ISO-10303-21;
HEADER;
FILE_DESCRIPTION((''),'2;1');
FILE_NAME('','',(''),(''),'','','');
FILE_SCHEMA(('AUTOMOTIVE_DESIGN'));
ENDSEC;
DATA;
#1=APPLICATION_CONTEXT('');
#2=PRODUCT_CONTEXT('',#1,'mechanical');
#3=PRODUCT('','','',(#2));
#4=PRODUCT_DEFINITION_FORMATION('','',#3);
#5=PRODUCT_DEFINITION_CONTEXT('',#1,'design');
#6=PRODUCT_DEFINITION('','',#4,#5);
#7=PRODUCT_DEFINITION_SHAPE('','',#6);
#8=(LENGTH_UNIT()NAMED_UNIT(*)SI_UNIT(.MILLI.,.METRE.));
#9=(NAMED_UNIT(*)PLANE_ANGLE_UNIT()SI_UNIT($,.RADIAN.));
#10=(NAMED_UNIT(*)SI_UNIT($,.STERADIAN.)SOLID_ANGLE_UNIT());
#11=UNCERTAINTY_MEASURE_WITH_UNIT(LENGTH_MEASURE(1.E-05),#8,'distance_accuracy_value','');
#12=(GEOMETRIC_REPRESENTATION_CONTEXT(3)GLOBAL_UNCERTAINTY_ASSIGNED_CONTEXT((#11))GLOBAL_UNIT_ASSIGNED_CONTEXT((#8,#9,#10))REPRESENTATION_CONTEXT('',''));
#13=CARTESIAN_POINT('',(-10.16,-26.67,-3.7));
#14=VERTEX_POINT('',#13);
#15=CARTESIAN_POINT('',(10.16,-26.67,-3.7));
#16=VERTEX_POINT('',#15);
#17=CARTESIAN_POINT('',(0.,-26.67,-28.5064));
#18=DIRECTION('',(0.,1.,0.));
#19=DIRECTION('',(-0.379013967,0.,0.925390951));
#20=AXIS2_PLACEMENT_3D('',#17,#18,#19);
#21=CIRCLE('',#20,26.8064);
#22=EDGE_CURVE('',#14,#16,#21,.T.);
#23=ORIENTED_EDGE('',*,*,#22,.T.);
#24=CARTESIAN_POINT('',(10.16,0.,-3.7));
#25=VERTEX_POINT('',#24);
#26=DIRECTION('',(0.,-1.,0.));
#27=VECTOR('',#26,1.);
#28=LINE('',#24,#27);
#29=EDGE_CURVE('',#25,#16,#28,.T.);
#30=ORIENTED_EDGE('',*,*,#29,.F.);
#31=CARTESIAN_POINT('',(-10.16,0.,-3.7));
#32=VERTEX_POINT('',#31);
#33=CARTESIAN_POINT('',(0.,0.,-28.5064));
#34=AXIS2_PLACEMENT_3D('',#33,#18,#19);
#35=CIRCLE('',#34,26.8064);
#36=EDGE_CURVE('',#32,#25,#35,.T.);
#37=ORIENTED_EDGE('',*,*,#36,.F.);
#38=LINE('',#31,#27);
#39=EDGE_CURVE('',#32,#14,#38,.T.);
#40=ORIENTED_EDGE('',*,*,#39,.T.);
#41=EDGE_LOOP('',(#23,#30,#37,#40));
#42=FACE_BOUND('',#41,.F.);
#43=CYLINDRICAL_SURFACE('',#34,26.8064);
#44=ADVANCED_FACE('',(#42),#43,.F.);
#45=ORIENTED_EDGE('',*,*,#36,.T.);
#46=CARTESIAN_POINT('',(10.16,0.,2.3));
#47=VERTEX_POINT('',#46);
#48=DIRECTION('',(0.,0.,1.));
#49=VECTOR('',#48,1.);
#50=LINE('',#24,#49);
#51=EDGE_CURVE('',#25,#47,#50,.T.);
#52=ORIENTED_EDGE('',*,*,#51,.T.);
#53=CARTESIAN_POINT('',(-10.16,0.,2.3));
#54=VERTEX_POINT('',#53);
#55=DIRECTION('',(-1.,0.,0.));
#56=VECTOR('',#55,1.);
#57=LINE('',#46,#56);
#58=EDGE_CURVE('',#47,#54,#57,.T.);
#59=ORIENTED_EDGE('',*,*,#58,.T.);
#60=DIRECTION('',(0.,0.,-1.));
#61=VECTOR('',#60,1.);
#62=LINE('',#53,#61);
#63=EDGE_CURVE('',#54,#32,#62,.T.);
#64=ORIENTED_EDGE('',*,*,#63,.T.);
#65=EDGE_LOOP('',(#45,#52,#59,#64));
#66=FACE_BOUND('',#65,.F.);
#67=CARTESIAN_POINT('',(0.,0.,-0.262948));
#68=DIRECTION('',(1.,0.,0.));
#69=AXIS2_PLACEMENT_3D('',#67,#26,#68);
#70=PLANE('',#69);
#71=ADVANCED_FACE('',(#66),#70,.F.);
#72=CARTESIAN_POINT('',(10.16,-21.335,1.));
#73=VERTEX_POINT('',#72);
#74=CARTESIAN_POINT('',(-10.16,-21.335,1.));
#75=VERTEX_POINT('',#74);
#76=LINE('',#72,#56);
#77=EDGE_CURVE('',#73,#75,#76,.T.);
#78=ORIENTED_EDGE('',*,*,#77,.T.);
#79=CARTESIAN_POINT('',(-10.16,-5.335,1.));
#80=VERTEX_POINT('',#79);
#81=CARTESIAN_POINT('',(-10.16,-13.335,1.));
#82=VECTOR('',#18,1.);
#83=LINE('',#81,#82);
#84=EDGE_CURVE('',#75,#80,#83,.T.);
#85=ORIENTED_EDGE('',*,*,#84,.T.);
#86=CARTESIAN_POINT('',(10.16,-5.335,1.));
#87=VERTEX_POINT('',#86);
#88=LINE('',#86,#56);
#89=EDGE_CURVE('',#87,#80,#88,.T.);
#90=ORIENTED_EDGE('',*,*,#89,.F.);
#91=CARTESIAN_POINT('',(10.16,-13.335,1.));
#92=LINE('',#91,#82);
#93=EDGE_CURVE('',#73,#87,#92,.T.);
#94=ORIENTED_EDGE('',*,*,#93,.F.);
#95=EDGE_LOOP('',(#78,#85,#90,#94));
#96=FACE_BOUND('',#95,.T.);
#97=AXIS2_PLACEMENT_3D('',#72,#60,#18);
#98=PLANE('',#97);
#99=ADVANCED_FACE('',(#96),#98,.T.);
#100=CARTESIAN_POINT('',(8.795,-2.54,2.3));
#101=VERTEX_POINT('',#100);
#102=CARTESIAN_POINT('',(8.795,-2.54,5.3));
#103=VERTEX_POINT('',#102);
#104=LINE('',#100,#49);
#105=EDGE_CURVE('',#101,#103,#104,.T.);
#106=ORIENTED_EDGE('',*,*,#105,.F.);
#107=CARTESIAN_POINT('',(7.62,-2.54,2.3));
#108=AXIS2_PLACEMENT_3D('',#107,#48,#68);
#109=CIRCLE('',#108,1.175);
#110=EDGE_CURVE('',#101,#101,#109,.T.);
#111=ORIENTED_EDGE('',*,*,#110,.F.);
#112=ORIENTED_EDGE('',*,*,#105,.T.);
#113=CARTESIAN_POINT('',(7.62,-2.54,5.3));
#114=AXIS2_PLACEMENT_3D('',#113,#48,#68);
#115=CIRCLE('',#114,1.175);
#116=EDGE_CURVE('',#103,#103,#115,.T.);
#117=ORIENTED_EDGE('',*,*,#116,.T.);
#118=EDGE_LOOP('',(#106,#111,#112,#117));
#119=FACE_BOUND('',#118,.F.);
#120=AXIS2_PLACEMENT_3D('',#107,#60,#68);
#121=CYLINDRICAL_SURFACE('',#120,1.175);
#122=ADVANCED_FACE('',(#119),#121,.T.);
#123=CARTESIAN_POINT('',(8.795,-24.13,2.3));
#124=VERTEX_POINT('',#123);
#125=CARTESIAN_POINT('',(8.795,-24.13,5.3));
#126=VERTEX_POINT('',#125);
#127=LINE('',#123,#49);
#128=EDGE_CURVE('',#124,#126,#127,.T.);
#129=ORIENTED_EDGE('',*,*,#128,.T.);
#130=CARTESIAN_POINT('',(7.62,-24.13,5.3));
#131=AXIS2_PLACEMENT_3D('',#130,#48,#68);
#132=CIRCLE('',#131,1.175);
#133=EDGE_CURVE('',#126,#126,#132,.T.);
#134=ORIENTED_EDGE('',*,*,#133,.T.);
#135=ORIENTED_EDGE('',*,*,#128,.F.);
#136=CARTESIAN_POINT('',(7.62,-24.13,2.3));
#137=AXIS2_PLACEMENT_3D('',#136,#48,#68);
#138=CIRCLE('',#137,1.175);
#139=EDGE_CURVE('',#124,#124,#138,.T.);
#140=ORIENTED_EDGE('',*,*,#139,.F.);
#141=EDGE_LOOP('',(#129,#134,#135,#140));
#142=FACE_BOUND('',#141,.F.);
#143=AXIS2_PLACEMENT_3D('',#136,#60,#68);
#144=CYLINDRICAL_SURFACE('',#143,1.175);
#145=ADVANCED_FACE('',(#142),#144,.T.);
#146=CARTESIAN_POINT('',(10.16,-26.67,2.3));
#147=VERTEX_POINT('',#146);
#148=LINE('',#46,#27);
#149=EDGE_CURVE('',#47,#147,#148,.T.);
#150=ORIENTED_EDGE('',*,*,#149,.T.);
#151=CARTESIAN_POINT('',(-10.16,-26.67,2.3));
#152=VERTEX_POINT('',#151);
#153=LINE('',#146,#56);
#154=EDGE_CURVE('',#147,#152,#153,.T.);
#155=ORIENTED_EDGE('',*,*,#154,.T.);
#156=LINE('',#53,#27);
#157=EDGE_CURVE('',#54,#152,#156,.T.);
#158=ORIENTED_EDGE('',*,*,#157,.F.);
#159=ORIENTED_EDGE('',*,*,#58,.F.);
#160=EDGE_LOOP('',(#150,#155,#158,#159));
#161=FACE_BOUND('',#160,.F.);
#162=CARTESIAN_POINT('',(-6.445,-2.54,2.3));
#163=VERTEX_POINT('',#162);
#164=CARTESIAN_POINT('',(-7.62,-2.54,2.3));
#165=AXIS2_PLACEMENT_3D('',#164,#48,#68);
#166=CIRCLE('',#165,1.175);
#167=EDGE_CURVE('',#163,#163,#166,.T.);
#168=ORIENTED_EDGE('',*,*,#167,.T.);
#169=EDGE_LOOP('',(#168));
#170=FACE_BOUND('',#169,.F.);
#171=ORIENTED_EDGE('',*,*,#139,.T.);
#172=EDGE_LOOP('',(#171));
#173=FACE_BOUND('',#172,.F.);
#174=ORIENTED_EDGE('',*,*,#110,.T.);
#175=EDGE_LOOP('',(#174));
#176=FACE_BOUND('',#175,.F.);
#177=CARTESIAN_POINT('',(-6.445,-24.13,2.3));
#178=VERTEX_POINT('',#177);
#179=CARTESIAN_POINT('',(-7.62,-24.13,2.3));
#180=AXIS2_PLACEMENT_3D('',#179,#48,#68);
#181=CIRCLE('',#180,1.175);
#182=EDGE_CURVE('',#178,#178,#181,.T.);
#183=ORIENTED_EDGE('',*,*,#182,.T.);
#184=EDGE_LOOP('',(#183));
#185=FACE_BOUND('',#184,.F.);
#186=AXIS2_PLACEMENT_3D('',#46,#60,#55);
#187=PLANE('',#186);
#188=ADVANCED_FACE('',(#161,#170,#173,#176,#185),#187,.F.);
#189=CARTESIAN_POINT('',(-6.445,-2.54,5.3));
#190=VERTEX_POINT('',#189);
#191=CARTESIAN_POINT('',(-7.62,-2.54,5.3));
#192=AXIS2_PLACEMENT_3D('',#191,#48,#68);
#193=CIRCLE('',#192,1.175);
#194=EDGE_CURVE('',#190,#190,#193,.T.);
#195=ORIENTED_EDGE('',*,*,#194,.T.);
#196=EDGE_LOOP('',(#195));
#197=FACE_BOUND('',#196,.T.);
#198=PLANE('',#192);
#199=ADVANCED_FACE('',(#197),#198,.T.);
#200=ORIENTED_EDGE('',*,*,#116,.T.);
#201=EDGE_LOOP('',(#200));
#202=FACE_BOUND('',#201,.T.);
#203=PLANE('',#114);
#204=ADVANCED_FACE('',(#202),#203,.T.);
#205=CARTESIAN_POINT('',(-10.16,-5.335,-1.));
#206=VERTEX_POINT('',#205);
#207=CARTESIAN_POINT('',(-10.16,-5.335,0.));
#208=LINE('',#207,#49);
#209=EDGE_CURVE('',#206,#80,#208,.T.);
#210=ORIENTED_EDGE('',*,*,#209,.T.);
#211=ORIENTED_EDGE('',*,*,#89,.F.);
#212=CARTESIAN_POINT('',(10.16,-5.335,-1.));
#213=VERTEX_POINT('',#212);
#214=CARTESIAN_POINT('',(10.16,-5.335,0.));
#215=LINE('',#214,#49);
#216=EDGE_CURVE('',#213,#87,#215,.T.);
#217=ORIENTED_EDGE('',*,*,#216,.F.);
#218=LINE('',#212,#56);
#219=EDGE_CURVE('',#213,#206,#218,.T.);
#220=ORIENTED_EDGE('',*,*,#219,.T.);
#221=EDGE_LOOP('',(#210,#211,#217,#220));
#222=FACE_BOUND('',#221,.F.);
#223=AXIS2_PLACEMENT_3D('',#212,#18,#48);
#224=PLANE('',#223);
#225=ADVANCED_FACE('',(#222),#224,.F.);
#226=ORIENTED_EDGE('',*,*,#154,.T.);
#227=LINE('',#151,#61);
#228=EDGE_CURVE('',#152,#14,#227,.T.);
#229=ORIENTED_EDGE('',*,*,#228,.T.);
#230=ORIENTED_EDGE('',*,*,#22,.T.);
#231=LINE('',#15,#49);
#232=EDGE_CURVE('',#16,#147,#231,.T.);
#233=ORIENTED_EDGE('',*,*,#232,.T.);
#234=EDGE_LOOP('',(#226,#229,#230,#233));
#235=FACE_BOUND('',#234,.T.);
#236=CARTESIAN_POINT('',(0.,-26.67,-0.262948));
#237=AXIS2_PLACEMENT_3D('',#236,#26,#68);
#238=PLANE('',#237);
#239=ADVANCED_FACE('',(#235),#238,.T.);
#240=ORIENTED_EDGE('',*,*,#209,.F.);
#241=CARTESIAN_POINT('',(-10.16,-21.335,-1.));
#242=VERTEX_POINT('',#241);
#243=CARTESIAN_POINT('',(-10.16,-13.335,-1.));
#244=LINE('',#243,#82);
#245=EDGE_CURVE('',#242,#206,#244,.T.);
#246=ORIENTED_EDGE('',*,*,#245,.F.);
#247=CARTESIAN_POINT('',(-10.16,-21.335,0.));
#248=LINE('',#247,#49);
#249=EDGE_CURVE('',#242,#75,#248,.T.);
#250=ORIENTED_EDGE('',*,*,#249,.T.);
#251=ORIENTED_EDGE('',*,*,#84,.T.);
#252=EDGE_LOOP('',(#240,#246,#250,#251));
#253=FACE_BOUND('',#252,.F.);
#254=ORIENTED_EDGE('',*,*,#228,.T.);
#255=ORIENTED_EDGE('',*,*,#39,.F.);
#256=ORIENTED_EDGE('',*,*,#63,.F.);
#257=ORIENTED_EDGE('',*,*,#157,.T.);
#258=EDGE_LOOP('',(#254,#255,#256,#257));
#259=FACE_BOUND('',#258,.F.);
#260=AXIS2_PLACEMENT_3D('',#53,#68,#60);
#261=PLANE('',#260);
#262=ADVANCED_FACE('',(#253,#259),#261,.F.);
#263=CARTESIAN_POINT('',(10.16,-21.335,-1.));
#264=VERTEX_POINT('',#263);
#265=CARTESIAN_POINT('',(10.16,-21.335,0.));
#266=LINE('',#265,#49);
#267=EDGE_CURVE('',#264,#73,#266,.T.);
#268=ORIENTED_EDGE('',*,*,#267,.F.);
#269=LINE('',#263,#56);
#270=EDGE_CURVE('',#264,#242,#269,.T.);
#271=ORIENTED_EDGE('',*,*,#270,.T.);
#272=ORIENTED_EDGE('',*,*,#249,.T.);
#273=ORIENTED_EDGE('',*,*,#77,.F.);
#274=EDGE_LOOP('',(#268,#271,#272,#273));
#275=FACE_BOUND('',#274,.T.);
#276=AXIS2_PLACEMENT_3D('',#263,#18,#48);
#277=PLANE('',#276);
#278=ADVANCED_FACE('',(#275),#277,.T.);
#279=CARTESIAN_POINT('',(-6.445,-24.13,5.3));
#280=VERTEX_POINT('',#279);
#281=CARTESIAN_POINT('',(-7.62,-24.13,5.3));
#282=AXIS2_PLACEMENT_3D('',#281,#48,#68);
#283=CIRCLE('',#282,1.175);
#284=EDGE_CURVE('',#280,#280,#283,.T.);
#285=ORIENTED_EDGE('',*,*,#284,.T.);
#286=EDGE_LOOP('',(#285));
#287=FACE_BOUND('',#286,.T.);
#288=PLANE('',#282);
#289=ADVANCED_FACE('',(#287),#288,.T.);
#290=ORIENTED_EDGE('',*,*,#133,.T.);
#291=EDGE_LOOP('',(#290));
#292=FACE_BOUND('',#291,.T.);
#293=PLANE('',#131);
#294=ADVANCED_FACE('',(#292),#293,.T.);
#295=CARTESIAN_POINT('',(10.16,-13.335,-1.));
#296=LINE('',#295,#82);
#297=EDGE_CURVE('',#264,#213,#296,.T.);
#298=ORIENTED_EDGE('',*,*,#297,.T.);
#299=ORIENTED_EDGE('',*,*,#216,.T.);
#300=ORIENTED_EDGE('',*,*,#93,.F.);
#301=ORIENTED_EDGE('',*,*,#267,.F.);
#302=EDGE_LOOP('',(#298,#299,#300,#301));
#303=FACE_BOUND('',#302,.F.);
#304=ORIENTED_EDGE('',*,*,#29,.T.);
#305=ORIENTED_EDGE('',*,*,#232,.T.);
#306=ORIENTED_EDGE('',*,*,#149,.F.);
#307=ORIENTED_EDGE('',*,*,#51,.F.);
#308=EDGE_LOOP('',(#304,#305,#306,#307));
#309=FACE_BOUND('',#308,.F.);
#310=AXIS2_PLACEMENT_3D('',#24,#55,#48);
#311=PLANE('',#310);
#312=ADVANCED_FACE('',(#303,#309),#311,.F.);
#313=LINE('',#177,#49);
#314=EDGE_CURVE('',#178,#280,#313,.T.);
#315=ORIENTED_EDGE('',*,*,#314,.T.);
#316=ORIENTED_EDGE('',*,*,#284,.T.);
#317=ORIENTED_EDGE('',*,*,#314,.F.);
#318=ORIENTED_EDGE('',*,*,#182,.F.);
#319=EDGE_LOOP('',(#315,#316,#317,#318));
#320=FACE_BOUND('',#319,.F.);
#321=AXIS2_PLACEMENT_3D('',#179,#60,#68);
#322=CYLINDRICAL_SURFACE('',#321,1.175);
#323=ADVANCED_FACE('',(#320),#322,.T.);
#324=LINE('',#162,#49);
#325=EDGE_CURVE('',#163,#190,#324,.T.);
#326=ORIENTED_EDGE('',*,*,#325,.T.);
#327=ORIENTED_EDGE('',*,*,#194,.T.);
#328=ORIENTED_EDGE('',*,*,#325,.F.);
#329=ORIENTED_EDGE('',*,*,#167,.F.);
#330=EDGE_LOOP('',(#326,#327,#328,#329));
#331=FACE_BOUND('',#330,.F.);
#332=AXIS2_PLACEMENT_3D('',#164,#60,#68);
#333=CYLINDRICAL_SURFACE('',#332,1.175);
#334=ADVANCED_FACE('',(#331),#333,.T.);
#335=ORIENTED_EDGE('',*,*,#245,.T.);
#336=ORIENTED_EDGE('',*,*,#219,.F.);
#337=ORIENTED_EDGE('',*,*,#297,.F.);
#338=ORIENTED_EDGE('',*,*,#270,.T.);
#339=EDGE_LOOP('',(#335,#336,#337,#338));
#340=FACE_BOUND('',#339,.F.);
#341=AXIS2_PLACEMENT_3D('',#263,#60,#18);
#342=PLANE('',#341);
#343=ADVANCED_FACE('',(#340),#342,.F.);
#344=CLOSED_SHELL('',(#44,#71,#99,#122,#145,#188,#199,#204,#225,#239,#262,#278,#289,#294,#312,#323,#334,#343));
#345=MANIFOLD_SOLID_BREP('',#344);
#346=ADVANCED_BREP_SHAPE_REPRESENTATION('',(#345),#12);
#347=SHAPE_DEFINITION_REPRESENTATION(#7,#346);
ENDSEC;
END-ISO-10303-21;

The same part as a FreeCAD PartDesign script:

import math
import FreeCAD as App
import Part
import Sketcher
from FreeCAD import Vector


def add_polygon(sketch, points):
    """Adds a closed chain of lines whose ends are joined by coincident constraints."""
    first, n = sketch.GeometryCount, len(points)
    for a, b in zip(points, points[1:] + points[:1]):
        sketch.addGeometry(Part.LineSegment(App.Vector(*a, 0), App.Vector(*b, 0)), False)
    for i in range(n):
        sketch.addConstraint(Sketcher.Constraint("Coincident", first + i, 2, first + (i + 1) % n, 1))

doc = App.newDocument("Part")
body = doc.addObject("PartDesign::Body", "Body")

sketch1 = body.newObject("Sketcher::SketchObject", "Sketch")
sketch1.AttachmentSupport = (doc.getObject("XZ_Plane"), [""])
sketch1.MapMode = "FlatFace"
sketch1.addGeometry([
    Part.ArcOfCircle(Part.Circle(Vector(0, -29, 0), Vector(0, 0, 1), 27), math.radians(68), math.radians(112)),
    Part.LineSegment(Vector(10, -4, 0), Vector(10, 2, 0)),
    Part.LineSegment(Vector(10, 2, 0), Vector(-10, 2, 0)),
    Part.LineSegment(Vector(-10, 2, 0), Vector(-10, -4, 0)),
], False)
sketch1.addConstraint([
    Sketcher.Constraint("Coincident", 0, 1, 1, 1),
    Sketcher.Constraint("Coincident", 1, 2, 2, 1),
    Sketcher.Constraint("Coincident", 2, 2, 3, 1),
    Sketcher.Constraint("Coincident", 3, 2, 0, 2),
    Sketcher.Constraint("Vertical", 1),
    Sketcher.Constraint("Horizontal", 2),
    Sketcher.Constraint("Vertical", 3),
    Sketcher.Constraint("Symmetric", 0, 1, 3, 2, -2),
    Sketcher.Constraint("DistanceY", 1, 1, 1, 2, 6.0),
    Sketcher.Constraint("DistanceX", 2, 2, 2, 1, 20.32),
    Sketcher.Constraint("DistanceY", 0, 1, -1, 1, 3.7),
    Sketcher.Constraint("Radius", 0, 26.8064),
])
pad1 = body.newObject("PartDesign::Pad", "Pad")
pad1.Profile = sketch1
pad1.Length = 26.67

sketch2 = body.newObject("Sketcher::SketchObject", "Sketch001")
sketch2.AttachmentSupport = (doc.getObject("YZ_Plane"), [""])
sketch2.MapMode = "FlatFace"
sketch2.AttachmentOffset = App.Placement(Vector(0, 0, 10.16), App.Rotation())
add_polygon(sketch2, [(-21.3, 1), (-21.3, -1), (-5.3, -1), (-5.3, 1)])
sketch2.addConstraint([
    Sketcher.Constraint("Vertical", 0),
    Sketcher.Constraint("Horizontal", 1),
    Sketcher.Constraint("Vertical", 2),
    Sketcher.Constraint("Horizontal", 3),
    Sketcher.Constraint("DistanceX", 1, 1, 1, 2, 16.0),
    Sketcher.Constraint("DistanceY", 0, 2, 0, 1, 2.0),
    Sketcher.Constraint("DistanceY", 0, 2, -1, 1, 1.0),
    Sketcher.Constraint("DistanceX", 0, 2, -1, 1, 21.335),
])
pocket1 = body.newObject("PartDesign::Pocket", "Pocket")
pocket1.Profile = sketch2
pocket1.Type = "ThroughAll"

sketch3 = body.newObject("Sketcher::SketchObject", "Sketch002")
sketch3.AttachmentSupport = (doc.getObject("XY_Plane"), [""])
sketch3.MapMode = "FlatFace"
sketch3.AttachmentOffset = App.Placement(Vector(0, 0, 2.3), App.Rotation())
sketch3.addGeometry([
    Part.Circle(Vector(7.6, -2.5, 0), Vector(0, 0, 1), 1.2),
    Part.Circle(Vector(7.6, -24.1, 0), Vector(0, 0, 1), 1.2),
    Part.Circle(Vector(-7.6, -2.5, 0), Vector(0, 0, 1), 1.2),
    Part.Circle(Vector(-7.6, -24.1, 0), Vector(0, 0, 1), 1.2),
], False)
sketch3.addConstraint([
    Sketcher.Constraint("Equal", 0, 1),
    Sketcher.Constraint("Equal", 1, 2),
    Sketcher.Constraint("Equal", 2, 3),
    Sketcher.Constraint("Symmetric", 0, 3, 2, 3, -2),
    Sketcher.Constraint("Symmetric", 1, 3, 3, 3, -2),
    Sketcher.Constraint("Vertical", 0, 3, 1, 3),
    Sketcher.Constraint("Diameter", 0, 2.35),
    Sketcher.Constraint("DistanceX", -1, 1, 0, 3, 7.62),
    Sketcher.Constraint("DistanceY", 0, 3, -1, 1, 2.54),
    Sketcher.Constraint("DistanceY", 1, 3, -1, 1, 24.13),
])
pad2 = body.newObject("PartDesign::Pad", "Pad001")
pad2.Profile = sketch3
pad2.Length = 3

doc.recompute()
